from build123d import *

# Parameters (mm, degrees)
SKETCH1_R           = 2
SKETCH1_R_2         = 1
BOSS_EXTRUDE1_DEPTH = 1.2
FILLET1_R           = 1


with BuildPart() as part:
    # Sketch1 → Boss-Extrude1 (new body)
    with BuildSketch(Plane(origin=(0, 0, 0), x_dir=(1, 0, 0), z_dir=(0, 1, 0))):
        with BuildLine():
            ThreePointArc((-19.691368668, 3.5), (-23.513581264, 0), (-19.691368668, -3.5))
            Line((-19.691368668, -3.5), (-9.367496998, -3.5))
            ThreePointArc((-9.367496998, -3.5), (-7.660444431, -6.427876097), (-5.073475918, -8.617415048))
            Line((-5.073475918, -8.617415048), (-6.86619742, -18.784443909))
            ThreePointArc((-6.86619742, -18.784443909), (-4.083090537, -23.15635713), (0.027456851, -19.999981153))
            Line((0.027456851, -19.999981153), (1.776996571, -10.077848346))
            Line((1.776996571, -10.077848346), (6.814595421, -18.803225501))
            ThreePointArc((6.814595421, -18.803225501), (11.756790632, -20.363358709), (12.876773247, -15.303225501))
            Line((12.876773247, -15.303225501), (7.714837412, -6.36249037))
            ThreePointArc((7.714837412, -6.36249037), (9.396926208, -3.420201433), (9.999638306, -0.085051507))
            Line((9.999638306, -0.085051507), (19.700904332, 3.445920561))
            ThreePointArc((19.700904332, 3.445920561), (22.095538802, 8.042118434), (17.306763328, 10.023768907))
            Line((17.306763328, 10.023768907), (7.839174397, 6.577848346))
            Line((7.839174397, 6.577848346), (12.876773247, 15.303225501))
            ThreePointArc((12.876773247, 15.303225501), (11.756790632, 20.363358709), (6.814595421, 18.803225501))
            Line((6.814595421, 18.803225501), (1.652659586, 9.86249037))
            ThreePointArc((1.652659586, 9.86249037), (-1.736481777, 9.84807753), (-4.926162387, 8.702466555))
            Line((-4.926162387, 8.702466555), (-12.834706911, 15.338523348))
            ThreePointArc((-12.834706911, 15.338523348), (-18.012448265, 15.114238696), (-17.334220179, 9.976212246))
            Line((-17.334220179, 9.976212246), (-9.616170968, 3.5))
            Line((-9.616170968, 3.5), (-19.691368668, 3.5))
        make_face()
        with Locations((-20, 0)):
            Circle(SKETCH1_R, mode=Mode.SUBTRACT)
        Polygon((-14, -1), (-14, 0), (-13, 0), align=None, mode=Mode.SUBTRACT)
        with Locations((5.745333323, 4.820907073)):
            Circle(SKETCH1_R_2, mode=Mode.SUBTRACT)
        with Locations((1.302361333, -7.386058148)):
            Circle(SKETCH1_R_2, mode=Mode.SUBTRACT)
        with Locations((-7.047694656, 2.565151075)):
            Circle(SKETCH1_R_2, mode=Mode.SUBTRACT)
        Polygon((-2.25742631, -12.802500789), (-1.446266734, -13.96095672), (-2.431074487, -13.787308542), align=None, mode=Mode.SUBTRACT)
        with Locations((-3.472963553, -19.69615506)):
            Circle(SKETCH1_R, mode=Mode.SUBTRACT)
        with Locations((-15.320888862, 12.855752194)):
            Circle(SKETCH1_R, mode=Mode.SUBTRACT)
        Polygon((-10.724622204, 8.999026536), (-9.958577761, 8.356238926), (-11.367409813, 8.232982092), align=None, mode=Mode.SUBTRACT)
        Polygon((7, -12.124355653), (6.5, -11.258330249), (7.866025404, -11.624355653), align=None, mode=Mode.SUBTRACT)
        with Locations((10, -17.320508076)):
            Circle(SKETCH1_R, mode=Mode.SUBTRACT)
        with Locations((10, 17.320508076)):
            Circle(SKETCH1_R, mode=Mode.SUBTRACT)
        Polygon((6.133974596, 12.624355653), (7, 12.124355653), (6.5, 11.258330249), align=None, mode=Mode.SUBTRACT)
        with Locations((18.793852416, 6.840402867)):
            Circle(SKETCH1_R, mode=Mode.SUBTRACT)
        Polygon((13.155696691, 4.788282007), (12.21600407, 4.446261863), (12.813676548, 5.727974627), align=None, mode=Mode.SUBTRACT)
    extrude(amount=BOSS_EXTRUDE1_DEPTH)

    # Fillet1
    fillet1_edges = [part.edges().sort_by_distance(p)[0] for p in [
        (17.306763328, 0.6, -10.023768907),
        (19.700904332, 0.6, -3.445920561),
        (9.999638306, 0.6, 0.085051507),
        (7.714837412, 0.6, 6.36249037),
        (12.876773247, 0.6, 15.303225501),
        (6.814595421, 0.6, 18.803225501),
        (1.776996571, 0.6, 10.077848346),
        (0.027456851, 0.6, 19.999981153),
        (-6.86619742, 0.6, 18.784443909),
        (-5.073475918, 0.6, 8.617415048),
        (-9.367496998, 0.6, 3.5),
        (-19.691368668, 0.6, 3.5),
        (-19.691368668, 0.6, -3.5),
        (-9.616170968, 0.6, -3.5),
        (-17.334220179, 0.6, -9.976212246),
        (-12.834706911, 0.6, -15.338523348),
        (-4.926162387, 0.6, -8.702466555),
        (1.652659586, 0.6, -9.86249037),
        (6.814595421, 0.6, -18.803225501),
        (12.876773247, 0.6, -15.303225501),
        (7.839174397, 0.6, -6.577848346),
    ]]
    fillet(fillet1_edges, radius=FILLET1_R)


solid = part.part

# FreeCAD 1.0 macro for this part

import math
import FreeCAD as App
import Part
import Sketcher
from FreeCAD import Vector
Q = App.Units.Quantity


def edges_at(feature, points):
    """Names of the edges that pass closest to the given points."""
    edges = feature.Shape.Edges
    near = lambda p: min(range(len(edges)), key=lambda i: edges[i].distToShape(Part.Vertex(*p))[0])
    return sorted({f"Edge{near(p) + 1}" for p in points})


def add_polygon(sketch, points):
    """Adds a closed chain of lines whose ends are joined by coincident constraints."""
    first, n = sketch.GeometryCount, len(points)
    for a, b in zip(points, points[1:] + points[:1]):
        sketch.addGeometry(Part.LineSegment(App.Vector(*a, 0), App.Vector(*b, 0)), False)
    for i in range(n):
        sketch.addConstraint(Sketcher.Constraint("Coincident", first + i, 2, first + (i + 1) % n, 1))

doc = App.newDocument("Part")
body = doc.addObject("PartDesign::Body", "Body")

# Sketch on XZ plane
sketch1 = body.newObject("Sketcher::SketchObject", "Sketch")
sketch1.AttachmentSupport = (doc.getObject("XZ_Plane"), [""])
sketch1.MapMode = "FlatFace"
sketch1.addGeometry(Part.ArcOfCircle(Part.Circle(Vector(-20, 0, 0), Vector(0, 0, 1), 3.5), math.radians(85), math.radians(275)), False)  # 0
sketch1.addGeometry(Part.LineSegment(Vector(-19.7, 3.5, 0), Vector(-9.4, 3.5, 0)), False)  # 1
sketch1.addGeometry(Part.ArcOfCircle(Part.Circle(Vector(0, 0, 0), Vector(0, 0, 1), 10), math.radians(120), math.radians(160)), False)  # 2
sketch1.addGeometry(Part.LineSegment(Vector(-5.1, 8.6, 0), Vector(-6.9, 18.8, 0)), False)  # 3
sketch1.addGeometry(Part.ArcOfCircle(Part.Circle(Vector(-3.5, 19.7, 0), Vector(0, 0, 1), 3.5), math.radians(5), math.radians(195)), False)  # 4
sketch1.addGeometry(Part.LineSegment(Vector(0, 20, 0), Vector(1.8, 10.1, 0)), False)  # 5
sketch1.addGeometry(Part.LineSegment(Vector(1.8, 10.1, 0), Vector(6.8, 18.8, 0)), False)  # 6
sketch1.addGeometry(Part.ArcOfCircle(Part.Circle(Vector(10, 17.3, 0), Vector(0, 0, 1), 3.5), math.radians(-35), math.radians(155)), False)  # 7
sketch1.addGeometry(Part.LineSegment(Vector(12.9, 15.3, 0), Vector(7.7, 6.4, 0)), False)  # 8
sketch1.addGeometry(Part.ArcOfCircle(Part.Circle(Vector(0, 0, 0), Vector(0, 0, 1), 10), math.radians(0), math.radians(40)), False)  # 9
sketch1.addGeometry(Part.LineSegment(Vector(10, 0.1, 0), Vector(19.7, -3.4, 0)), False)  # 10
sketch1.addGeometry(Part.ArcOfCircle(Part.Circle(Vector(18.8, -6.8, 0), Vector(0, 0, 1), 3.5), math.radians(-115), math.radians(75)), False)  # 11
sketch1.addGeometry(Part.LineSegment(Vector(17.3, -10, 0), Vector(7.8, -6.6, 0)), False)  # 12
sketch1.addGeometry(Part.LineSegment(Vector(7.8, -6.6, 0), Vector(12.9, -15.3, 0)), False)  # 13
sketch1.addGeometry(Part.ArcOfCircle(Part.Circle(Vector(10, -17.3, 0), Vector(0, 0, 1), 3.5), math.radians(-155), math.radians(35)), False)  # 14
sketch1.addGeometry(Part.LineSegment(Vector(6.8, -18.8, 0), Vector(1.7, -9.9, 0)), False)  # 15
sketch1.addGeometry(Part.ArcOfCircle(Part.Circle(Vector(0, 0, 0), Vector(0, 0, 1), 10), math.radians(-120), math.radians(-80)), False)  # 16
sketch1.addGeometry(Part.LineSegment(Vector(-4.9, -8.7, 0), Vector(-12.8, -15.3, 0)), False)  # 17
sketch1.addGeometry(Part.ArcOfCircle(Part.Circle(Vector(-15.3, -12.9, 0), Vector(0, 0, 1), 3.5), math.radians(125), math.radians(315)), False)  # 18
sketch1.addGeometry(Part.LineSegment(Vector(-17.3, -10, 0), Vector(-9.6, -3.5, 0)), False)  # 19
sketch1.addGeometry(Part.LineSegment(Vector(-9.6, -3.5, 0), Vector(-19.7, -3.5, 0)), False)  # 20
sketch1.addGeometry(Part.Circle(Vector(-3.5, 19.7, 0), Vector(0, 0, 1), 2), False)  # 21
add_polygon(sketch1, [(-2.4, 13.8), (-2.3, 12.8), (-1.4, 14)])  # lines 22-24
sketch1.addGeometry(Part.Circle(Vector(10, 17.3, 0), Vector(0, 0, 1), 2), False)  # 25
add_polygon(sketch1, [(7.9, 11.6), (7, 12.1), (6.5, 11.3)])  # lines 26-28
sketch1.addGeometry(Part.Circle(Vector(1.3, 7.4, 0), Vector(0, 0, 1), 1), False)  # 29
sketch1.addGeometry(Part.Circle(Vector(-20, 0, 0), Vector(0, 0, 1), 2), False)  # 30
add_polygon(sketch1, [(-13, 0), (-14, 1), (-14, 0)])  # lines 31-33
sketch1.addGeometry(Part.Circle(Vector(-7, -2.6, 0), Vector(0, 0, 1), 1), False)  # 34
add_polygon(sketch1, [(-11.4, -8.2), (-10.7, -9), (-10, -8.4)])  # lines 35-37
sketch1.addGeometry(Part.Circle(Vector(-15.3, -12.9, 0), Vector(0, 0, 1), 2), False)  # 38
sketch1.addGeometry(Part.Circle(Vector(5.7, -4.8, 0), Vector(0, 0, 1), 1), False)  # 39
add_polygon(sketch1, [(12.8, -5.7), (13.2, -4.8), (12.2, -4.4)])  # lines 40-42
sketch1.addGeometry(Part.Circle(Vector(18.8, -6.8, 0), Vector(0, 0, 1), 2), False)  # 43
add_polygon(sketch1, [(6.5, -11.3), (6.1, -12.6), (7, -12.1)])  # lines 44-46
sketch1.addGeometry(Part.Circle(Vector(10, -17.3, 0), Vector(0, 0, 1), 2), False)  # 47
sketch1.addConstraint([
    Sketcher.Constraint("Coincident", 0, 1, 1, 1),
    Sketcher.Constraint("Coincident", 1, 2, 2, 2),
    Sketcher.Constraint("Coincident", 2, 1, 3, 1),
    Sketcher.Constraint("Coincident", 3, 2, 4, 2),
    Sketcher.Constraint("Coincident", 4, 1, 5, 1),
    Sketcher.Constraint("Coincident", 5, 2, 6, 1),
    Sketcher.Constraint("Coincident", 6, 2, 7, 2),
    Sketcher.Constraint("Coincident", 7, 1, 8, 1),
    Sketcher.Constraint("Coincident", 8, 2, 9, 2),
    Sketcher.Constraint("Coincident", 9, 1, 10, 1),
    Sketcher.Constraint("Coincident", 10, 2, 11, 2),
    Sketcher.Constraint("Coincident", 11, 1, 12, 1),
    Sketcher.Constraint("Coincident", 12, 2, 13, 1),
    Sketcher.Constraint("Coincident", 13, 2, 14, 2),
    Sketcher.Constraint("Coincident", 14, 1, 15, 1),
    Sketcher.Constraint("Coincident", 15, 2, 16, 2),
    Sketcher.Constraint("Coincident", 16, 1, 17, 1),
    Sketcher.Constraint("Coincident", 17, 2, 18, 2),
    Sketcher.Constraint("Coincident", 18, 1, 19, 1),
    Sketcher.Constraint("Coincident", 19, 2, 20, 1),
    Sketcher.Constraint("Coincident", 20, 2, 0, 2),
    Sketcher.Constraint("Horizontal", 1),
    Sketcher.Constraint("Horizontal", 20),
    Sketcher.Constraint("Vertical", 32),
    Sketcher.Constraint("Horizontal", 33),
    Sketcher.Constraint("Coincident", 2, 3, -1, 1),
    Sketcher.Constraint("Coincident", 9, 3, -1, 1),
    Sketcher.Constraint("Coincident", 16, 3, -1, 1),
    Sketcher.Constraint("Coincident", 21, 3, 4, 3),
    Sketcher.Constraint("Coincident", 25, 3, 7, 3),
    Sketcher.Constraint("Coincident", 30, 3, 0, 3),
    Sketcher.Constraint("Coincident", 38, 3, 18, 3),
    Sketcher.Constraint("Coincident", 43, 3, 11, 3),
    Sketcher.Constraint("Coincident", 47, 3, 14, 3),
    Sketcher.Constraint("Equal", 0, 4),
    Sketcher.Constraint("Equal", 4, 7),
    Sketcher.Constraint("Equal", 2, 9),
    Sketcher.Constraint("Equal", 7, 11),
    Sketcher.Constraint("Equal", 11, 14),
    Sketcher.Constraint("Equal", 9, 16),
    Sketcher.Constraint("Equal", 14, 18),
    Sketcher.Constraint("Equal", 21, 25),
    Sketcher.Constraint("Equal", 25, 30),
    Sketcher.Constraint("Equal", 29, 34),
    Sketcher.Constraint("Equal", 30, 38),
    Sketcher.Constraint("Equal", 34, 39),
    Sketcher.Constraint("Equal", 38, 43),
    Sketcher.Constraint("Equal", 43, 47),
    Sketcher.Constraint("Symmetric", 7, 3, 14, 3, -1),
    Sketcher.Constraint("Symmetric", 0, 1, 20, 2, -1),
    Sketcher.Constraint("Symmetric", 26, 2, 45, 2, -1),
    Sketcher.Constraint("Symmetric", 27, 2, 46, 2, -1),
    Sketcher.Constraint("PointOnObject", 32, 2, -1),
    Sketcher.Constraint("Parallel", 3, 5),
    Sketcher.Constraint("Parallel", 6, 8),
    Sketcher.Constraint("Parallel", 10, 12),
    Sketcher.Constraint("Parallel", 13, 15),
    Sketcher.Constraint("Parallel", 17, 19),
    Sketcher.Constraint("Parallel", 5, 22),
    Sketcher.Constraint("Perpendicular", 22, 24),
    Sketcher.Constraint("Perpendicular", 8, 26),
    Sketcher.Constraint("Perpendicular", 26, 27),
    Sketcher.Constraint("Perpendicular", 19, 35),
    Sketcher.Constraint("Perpendicular", 35, 36),
    Sketcher.Constraint("Perpendicular", 12, 40),
    Sketcher.Constraint("Perpendicular", 40, 41),
    Sketcher.Constraint("Perpendicular", 15, 45),
    Sketcher.Constraint("Perpendicular", 45, 46),
    Sketcher.Constraint("Vertical", 7, 1, 13, 2),
    Sketcher.Constraint("Vertical", 6, 2, 14, 1),
    Sketcher.Constraint("Equal", 33, 32),
    Sketcher.Constraint("Equal", 5, 6),
    Sketcher.Constraint("Equal", 3, 8),
    Sketcher.Constraint("Equal", 8, 10),
    Sketcher.Constraint("Equal", 6, 12),
    Sketcher.Constraint("Equal", 12, 13),
    Sketcher.Constraint("Equal", 10, 15),
    Sketcher.Constraint("Equal", 15, 17),
    Sketcher.Constraint("Equal", 13, 19),
    Sketcher.Constraint("Equal", 22, 24),
    Sketcher.Constraint("Equal", 24, 26),
    Sketcher.Constraint("Equal", 26, 27),
    Sketcher.Constraint("Equal", 28, 31),
    Sketcher.Constraint("Equal", 27, 35),
    Sketcher.Constraint("Equal", 35, 36),
    Sketcher.Constraint("Equal", 36, 40),
    Sketcher.Constraint("Equal", 40, 41),
    Sketcher.Constraint("Equal", 42, 44),
    Sketcher.Constraint("Diameter", 21, Q("4 mm")),
    Sketcher.Constraint("Diameter", 29, Q("2 mm")),
    Sketcher.Constraint("Radius", 2, Q("10 mm")),
    Sketcher.Constraint("DistanceX", 33, 1, 33, 2, Q("1 mm")),
    Sketcher.Constraint("Angle", 3, Q("100 deg")),
    Sketcher.Constraint("Angle", 6, Q("60 deg")),
    Sketcher.Constraint("Angle", 10, Q("-20 deg")),
    Sketcher.Constraint("Angle", 17, Q("-140 deg")),
    Sketcher.Constraint("DistanceX", 0, 3, -1, 1, Q("20 mm")),
    Sketcher.Constraint("DistanceX", -1, 1, 7, 3, Q("10 mm")),
    Sketcher.Constraint("DistanceX", -1, 1, 26, 2, Q("7 mm")),
    Sketcher.Constraint("DistanceX", 31, 2, -1, 1, Q("14 mm")),
    Sketcher.Constraint("DistanceY", 19, 2, 1, 2, Q("7 mm")),
    Sketcher.Constraint("DistanceY", 7, 1, 6, 2, Q("3.5 mm")),
    Sketcher.Constraint("Radius", 0, Q("3.513581 mm")),
    Sketcher.Constraint("DistanceY", -1, 1, 22, 2, Q("12.802501 mm")),
    Sketcher.Constraint("DistanceY", 18, 3, 34, 3, Q("10.290601 mm")),
    Sketcher.Constraint("DistanceY", 47, 3, 39, 3, Q("12.499601 mm")),
    Sketcher.Constraint("DistanceX", 1, 2, 3, 2, Q("2.5013 mm")),
    Sketcher.Constraint("DistanceX", 5, 2, 6, 2, Q("5.037599 mm")),
    Sketcher.Constraint("DistanceX", 8, 2, 9, 1, Q("2.284801 mm")),
    Sketcher.Constraint("DistanceY", 12, 2, 9, 1, Q("6.6629 mm")),
    Sketcher.Constraint("DistanceX", 2, 1, 24, 2, Q("2.642401 mm")),
    Sketcher.Constraint("DistanceX", 20, 2, 20, 1, Q("10.075198 mm")),
    Sketcher.Constraint("DistanceX", 18, 3, -1, 1, Q("15.320889 mm")),
    Sketcher.Constraint("DistanceX", -1, 1, 29, 3, Q("1.302361 mm")),
    Sketcher.Constraint("DistanceY", -1, 1, 29, 3, Q("7.386058 mm")),
    Sketcher.Constraint("DistanceY", -1, 1, 27, 2, Q("11.25833 mm")),
    Sketcher.Constraint("DistanceY", 36, 2, -1, 1, Q("8.356239 mm")),
    Sketcher.Constraint("DistanceX", 37, 2, -1, 1, Q("11.36741 mm")),
    Sketcher.Constraint("DistanceY", 41, 2, -1, 1, Q("4.446262 mm")),
    Sketcher.Constraint("DistanceX", 29, 3, 39, 3, Q("4.442972 mm")),
    Sketcher.Constraint("DistanceX", 9, 1, 40, 2, Q("3.156058 mm")),
    Sketcher.Constraint("DistanceX", 34, 3, -1, 1, Q("7.047695 mm")),
])
pad1 = body.newObject("PartDesign::Pad", "Pad")
pad1.Profile = sketch1
pad1.Length = 1.2
pad1.Reversed = True
doc.recompute()

fillet = body.newObject("PartDesign::Fillet", "Fillet")
fillet.Base = (pad1, edges_at(pad1, [
    (17.307, 0.6, -10.024),
    (19.701, 0.6, -3.446),
    (10, 0.6, 0.085),
    (7.715, 0.6, 6.362),
    (12.877, 0.6, 15.303),
    (6.815, 0.6, 18.803),
    (1.777, 0.6, 10.078),
    (0.027, 0.6, 20),
    (-6.866, 0.6, 18.784),
    (-5.073, 0.6, 8.617),
    (-9.367, 0.6, 3.5),
    (-19.691, 0.6, 3.5),
    (-19.691, 0.6, -3.5),
    (-9.616, 0.6, -3.5),
    (-17.334, 0.6, -9.976),
    (-12.835, 0.6, -15.339),
    (-4.926, 0.6, -8.702),
    (1.653, 0.6, -9.862),
    (6.815, 0.6, -18.803),
    (12.877, 0.6, -15.303),
    (7.839, 0.6, -6.578),
]))
fillet.Radius = 1

doc.recompute()
